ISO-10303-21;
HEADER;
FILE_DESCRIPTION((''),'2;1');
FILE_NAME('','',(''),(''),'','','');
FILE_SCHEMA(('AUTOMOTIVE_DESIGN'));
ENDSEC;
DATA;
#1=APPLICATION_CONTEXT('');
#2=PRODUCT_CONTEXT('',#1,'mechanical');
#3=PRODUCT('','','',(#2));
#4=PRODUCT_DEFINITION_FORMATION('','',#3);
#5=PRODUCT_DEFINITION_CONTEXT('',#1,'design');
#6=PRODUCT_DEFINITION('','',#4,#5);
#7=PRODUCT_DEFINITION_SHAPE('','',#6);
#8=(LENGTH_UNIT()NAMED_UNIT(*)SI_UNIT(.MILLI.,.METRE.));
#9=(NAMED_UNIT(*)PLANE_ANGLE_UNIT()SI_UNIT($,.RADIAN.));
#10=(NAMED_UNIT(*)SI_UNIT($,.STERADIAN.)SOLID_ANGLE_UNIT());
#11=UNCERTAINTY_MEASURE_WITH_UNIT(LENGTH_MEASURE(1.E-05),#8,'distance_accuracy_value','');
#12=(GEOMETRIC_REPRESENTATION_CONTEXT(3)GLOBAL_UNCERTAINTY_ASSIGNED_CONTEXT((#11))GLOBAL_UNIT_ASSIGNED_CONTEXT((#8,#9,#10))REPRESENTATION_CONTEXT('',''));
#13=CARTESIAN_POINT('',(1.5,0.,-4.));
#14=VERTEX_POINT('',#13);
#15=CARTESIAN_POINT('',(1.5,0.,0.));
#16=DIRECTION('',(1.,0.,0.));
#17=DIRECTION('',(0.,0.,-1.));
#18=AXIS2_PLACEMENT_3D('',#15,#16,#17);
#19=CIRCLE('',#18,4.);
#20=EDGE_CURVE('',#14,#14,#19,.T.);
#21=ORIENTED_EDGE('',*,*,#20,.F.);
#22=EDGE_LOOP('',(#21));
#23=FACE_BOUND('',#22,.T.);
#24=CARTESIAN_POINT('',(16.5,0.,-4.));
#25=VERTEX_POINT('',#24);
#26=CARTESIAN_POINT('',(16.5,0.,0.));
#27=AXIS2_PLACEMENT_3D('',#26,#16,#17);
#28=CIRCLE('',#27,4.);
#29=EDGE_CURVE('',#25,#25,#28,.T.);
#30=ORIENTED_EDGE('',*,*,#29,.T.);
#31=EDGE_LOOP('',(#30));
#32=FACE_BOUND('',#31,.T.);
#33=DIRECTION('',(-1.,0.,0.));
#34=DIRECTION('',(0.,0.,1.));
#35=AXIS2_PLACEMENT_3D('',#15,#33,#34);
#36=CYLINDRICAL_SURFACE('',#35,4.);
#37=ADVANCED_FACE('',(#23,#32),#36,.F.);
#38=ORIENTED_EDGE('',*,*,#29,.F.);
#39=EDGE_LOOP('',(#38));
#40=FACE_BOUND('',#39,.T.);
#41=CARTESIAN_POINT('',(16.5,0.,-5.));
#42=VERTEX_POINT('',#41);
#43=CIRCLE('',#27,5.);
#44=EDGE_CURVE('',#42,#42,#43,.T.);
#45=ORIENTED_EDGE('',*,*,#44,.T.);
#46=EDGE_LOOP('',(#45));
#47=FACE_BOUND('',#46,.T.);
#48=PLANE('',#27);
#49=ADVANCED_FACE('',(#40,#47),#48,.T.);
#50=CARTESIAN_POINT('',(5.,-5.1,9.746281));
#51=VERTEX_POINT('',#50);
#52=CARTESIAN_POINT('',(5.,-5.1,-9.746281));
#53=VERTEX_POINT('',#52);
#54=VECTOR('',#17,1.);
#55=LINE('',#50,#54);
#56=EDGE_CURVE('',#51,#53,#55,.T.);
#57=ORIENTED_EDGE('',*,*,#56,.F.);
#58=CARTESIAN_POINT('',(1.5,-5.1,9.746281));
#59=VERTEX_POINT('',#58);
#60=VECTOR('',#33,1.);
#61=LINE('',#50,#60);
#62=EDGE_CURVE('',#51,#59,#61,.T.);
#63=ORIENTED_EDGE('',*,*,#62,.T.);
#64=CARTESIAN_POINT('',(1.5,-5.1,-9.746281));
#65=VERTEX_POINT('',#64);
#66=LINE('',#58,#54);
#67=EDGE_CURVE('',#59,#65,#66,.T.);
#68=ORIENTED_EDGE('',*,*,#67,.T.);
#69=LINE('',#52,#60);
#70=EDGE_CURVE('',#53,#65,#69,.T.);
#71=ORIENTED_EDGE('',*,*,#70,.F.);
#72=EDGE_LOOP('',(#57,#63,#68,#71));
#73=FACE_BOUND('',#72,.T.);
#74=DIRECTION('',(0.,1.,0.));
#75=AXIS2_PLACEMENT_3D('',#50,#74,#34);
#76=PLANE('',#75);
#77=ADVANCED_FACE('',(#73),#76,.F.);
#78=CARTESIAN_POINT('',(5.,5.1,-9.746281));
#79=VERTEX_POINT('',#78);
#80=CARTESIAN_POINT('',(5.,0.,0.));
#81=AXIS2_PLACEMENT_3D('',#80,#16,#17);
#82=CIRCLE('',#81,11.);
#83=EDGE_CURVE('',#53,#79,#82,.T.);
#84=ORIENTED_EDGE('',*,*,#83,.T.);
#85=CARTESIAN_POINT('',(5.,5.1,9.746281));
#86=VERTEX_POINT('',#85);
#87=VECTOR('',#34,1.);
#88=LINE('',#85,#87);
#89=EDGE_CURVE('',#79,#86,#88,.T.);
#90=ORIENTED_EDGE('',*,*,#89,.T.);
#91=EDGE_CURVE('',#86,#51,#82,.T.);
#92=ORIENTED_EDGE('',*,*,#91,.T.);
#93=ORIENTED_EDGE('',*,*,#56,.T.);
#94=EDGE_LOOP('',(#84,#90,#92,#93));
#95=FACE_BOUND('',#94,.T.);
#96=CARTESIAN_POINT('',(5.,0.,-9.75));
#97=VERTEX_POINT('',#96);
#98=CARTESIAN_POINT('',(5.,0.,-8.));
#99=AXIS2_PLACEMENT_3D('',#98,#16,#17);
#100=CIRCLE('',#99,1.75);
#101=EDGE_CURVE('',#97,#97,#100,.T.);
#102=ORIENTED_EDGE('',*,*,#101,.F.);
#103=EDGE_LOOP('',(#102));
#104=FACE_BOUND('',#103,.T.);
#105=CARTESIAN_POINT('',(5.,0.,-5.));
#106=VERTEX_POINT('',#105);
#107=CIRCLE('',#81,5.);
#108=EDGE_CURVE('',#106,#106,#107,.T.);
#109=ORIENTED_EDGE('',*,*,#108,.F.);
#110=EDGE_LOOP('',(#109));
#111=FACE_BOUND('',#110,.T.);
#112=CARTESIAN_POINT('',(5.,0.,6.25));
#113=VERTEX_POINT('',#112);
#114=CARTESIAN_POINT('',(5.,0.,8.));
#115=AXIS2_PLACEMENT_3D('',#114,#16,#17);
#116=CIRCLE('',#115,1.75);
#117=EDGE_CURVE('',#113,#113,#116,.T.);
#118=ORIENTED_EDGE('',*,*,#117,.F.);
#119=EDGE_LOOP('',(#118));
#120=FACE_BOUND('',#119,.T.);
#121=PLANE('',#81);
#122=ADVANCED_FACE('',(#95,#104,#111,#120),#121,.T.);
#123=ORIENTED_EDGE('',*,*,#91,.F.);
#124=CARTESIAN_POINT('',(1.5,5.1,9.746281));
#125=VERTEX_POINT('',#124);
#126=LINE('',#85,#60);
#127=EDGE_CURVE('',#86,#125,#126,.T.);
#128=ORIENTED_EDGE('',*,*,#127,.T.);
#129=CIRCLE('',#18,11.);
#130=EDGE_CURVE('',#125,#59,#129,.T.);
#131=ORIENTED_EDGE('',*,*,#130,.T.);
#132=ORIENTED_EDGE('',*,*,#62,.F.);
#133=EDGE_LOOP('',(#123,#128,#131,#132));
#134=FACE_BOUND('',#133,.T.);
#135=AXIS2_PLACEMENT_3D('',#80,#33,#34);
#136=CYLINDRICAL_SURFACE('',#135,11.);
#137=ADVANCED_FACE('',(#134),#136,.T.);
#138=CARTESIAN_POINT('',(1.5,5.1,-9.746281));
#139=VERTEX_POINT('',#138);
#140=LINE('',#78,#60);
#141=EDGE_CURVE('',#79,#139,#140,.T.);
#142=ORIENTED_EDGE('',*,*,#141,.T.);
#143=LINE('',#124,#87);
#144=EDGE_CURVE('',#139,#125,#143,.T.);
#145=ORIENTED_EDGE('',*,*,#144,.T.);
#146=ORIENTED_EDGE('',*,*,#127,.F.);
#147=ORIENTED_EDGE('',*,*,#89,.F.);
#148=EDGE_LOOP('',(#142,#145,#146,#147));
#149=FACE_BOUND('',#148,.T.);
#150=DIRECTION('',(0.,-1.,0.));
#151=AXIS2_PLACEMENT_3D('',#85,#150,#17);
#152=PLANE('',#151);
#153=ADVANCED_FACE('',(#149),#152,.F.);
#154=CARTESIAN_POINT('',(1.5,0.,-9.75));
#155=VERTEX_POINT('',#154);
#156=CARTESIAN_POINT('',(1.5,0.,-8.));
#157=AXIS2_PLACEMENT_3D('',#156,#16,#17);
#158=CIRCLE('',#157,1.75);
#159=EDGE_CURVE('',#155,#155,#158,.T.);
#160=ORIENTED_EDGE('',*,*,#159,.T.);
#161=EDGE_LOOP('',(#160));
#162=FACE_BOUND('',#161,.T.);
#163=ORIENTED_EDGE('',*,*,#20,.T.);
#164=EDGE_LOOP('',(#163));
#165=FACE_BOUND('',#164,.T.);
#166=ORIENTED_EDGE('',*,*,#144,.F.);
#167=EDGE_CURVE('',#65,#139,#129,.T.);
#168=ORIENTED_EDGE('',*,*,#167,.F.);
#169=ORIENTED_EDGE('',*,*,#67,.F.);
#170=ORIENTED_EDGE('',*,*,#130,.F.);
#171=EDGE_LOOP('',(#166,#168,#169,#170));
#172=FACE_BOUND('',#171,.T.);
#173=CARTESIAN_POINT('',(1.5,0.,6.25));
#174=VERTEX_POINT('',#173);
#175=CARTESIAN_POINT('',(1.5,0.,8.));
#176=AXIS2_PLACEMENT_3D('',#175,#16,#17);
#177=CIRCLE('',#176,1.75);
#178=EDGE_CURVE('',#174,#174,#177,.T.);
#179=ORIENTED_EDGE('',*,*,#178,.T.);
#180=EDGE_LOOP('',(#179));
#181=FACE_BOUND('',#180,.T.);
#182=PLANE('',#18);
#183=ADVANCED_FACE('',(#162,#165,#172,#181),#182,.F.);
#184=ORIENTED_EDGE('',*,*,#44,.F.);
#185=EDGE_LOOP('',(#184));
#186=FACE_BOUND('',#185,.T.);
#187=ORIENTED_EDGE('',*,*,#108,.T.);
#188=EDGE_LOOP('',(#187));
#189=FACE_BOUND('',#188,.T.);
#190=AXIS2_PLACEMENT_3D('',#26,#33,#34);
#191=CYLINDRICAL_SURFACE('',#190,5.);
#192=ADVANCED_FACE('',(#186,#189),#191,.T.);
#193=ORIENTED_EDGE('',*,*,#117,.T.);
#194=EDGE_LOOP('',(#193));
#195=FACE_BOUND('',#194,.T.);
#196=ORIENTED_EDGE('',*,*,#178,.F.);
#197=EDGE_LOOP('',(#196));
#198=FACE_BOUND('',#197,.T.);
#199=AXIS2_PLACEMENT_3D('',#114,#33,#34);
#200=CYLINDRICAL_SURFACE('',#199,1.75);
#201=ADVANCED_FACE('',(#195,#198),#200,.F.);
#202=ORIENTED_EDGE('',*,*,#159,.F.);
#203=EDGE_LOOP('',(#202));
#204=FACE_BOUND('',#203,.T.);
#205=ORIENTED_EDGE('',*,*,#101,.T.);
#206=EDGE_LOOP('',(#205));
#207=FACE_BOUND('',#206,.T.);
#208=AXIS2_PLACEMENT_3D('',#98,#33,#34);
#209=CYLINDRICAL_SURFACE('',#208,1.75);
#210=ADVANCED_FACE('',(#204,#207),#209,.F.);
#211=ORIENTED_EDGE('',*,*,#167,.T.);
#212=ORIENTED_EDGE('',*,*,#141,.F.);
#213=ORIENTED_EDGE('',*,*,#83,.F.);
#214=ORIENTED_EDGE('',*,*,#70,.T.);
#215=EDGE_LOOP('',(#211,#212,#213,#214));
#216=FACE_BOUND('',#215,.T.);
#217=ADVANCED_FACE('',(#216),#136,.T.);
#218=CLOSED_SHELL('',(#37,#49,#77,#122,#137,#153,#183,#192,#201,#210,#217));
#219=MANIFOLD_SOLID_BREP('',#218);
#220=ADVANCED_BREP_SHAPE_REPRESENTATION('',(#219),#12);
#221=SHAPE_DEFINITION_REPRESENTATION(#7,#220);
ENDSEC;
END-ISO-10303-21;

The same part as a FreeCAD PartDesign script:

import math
import FreeCAD as App
import Part
import Sketcher

doc = App.newDocument("Part")
params = doc.addObject("Spreadsheet::Sheet", "Params")
for row, (alias, value) in enumerate([
    ("sketch1_diameter", "10 mm"),
    ("sketch1_diameter2", "8 mm"),
    ("pad1_length", "1.5 mm"),
    ("sketch2_diameter", "8 mm"),
    ("sketch2_radius", "11 mm"),
    ("sketch2_diameter2", "3.5 mm"),
    ("pad2_length", "3.5 mm"),
    ("sketch3_diameter", "10 mm"),
    ("sketch3_diameter2", "8 mm"),
    ("pad3_length", "11.5 mm"),
    ("sketch4_diameter", "10 mm"),
    ("pocket1_length", "1.5 mm"),
], start=1):
    params.set(f"A{row}", alias)
    params.set(f"B{row}", "=" + value)
    params.setAlias(f"B{row}", alias)

body = doc.addObject("PartDesign::Body", "Body")

# Sketch on YZ plane
sketch1 = body.newObject("Sketcher::SketchObject", "Sketch")
sketch1.AttachmentSupport = (doc.getObject("YZ_Plane"), [""])
sketch1.MapMode = "FlatFace"
sketch1.addGeometry(Part.Circle(App.Vector(0, 0, 0), App.Vector(0, 0, 1), 5), False)
sketch1.addGeometry(Part.Circle(App.Vector(0, 0, 0), App.Vector(0, 0, 1), 4), False)
sketch1.addConstraint(Sketcher.Constraint("Coincident", 0, 3, -1, 1))
sketch1.addConstraint(Sketcher.Constraint("Coincident", 1, 3, -1, 1))
sketch1.addConstraint(Sketcher.Constraint("Diameter", 0, 10.0))
sketch1.addConstraint(Sketcher.Constraint("Diameter", 1, 8.0))
sketch1.setExpression("Constraints[2]", "Params.sketch1_diameter")
sketch1.setExpression("Constraints[3]", "Params.sketch1_diameter2")
pad1 = body.newObject("PartDesign::Pad", "Pad")
pad1.Profile = sketch1
pad1.setExpression("Length", "Params.pad1_length")

# Sketch on YZ plane
sketch2 = body.newObject("Sketcher::SketchObject", "Sketch001")
sketch2.AttachmentSupport = (doc.getObject("YZ_Plane"), [""])
sketch2.MapMode = "FlatFace"
sketch2.AttachmentOffset = App.Placement(App.Vector(0, 0, 1.5), App.Rotation())
sketch2.addGeometry(Part.LineSegment(App.Vector(5.1, -9.746281, 0), App.Vector(5.1, 9.746281, 0)), False)
sketch2.addGeometry(Part.ArcOfCircle(Part.Circle(App.Vector(0, 0, 0), App.Vector(0, 0, 1), 11), math.radians(62.377995), math.radians(117.622005)), False)
sketch2.addGeometry(Part.LineSegment(App.Vector(-5.1, 9.746281, 0), App.Vector(-5.1, -9.746281, 0)), False)
sketch2.addGeometry(Part.ArcOfCircle(Part.Circle(App.Vector(0, 0, 0), App.Vector(0, 0, 1), 11), math.radians(-117.622005), math.radians(-62.377995)), False)
sketch2.addGeometry(Part.Circle(App.Vector(0, -8, 0), App.Vector(0, 0, 1), 1.75), False)
sketch2.addGeometry(Part.Circle(App.Vector(0, 0, 0), App.Vector(0, 0, 1), 4), False)
sketch2.addGeometry(Part.Circle(App.Vector(0, 8, 0), App.Vector(0, 0, 1), 1.75), False)
sketch2.addConstraint(Sketcher.Constraint("Coincident", 0, 2, 1, 1))
sketch2.addConstraint(Sketcher.Constraint("Coincident", 1, 2, 2, 1))
sketch2.addConstraint(Sketcher.Constraint("Coincident", 2, 2, 3, 1))
sketch2.addConstraint(Sketcher.Constraint("Coincident", 3, 2, 0, 1))
sketch2.addConstraint(Sketcher.Constraint("Vertical", 0))
sketch2.addConstraint(Sketcher.Constraint("Vertical", 2))
sketch2.addConstraint(Sketcher.Constraint("Coincident", 1, 3, -1, 1))
sketch2.addConstraint(Sketcher.Constraint("Coincident", 3, 3, -1, 1))
sketch2.addConstraint(Sketcher.Constraint("Coincident", 5, 3, -1, 1))
sketch2.addConstraint(Sketcher.Constraint("Equal", 1, 3))
sketch2.addConstraint(Sketcher.Constraint("Equal", 4, 6))
sketch2.addConstraint(Sketcher.Constraint("Symmetric", 4, 3, 6, 3, -1, 1))
sketch2.addConstraint(Sketcher.Constraint("PointOnObject", 4, 3, -2))
sketch2.addConstraint(Sketcher.Constraint("Horizontal", 0, 2, 1, 2))
sketch2.addConstraint(Sketcher.Constraint("Diameter", 5, 8.0))
sketch2.addConstraint(Sketcher.Constraint("Radius", 1, 11.0))
sketch2.addConstraint(Sketcher.Constraint("Diameter", 4, 3.5))
sketch2.addConstraint(Sketcher.Constraint("DistanceY", 4, 3, -1, 1, 8.0))
sketch2.addConstraint(Sketcher.Constraint("DistanceX", -1, 1, 0, 2, 5.1))
sketch2.setExpression("Constraints[14]", "Params.sketch2_diameter")
sketch2.setExpression("Constraints[15]", "Params.sketch2_radius")
sketch2.setExpression("Constraints[16]", "Params.sketch2_diameter2")
pad2 = body.newObject("PartDesign::Pad", "Pad001")
pad2.Profile = sketch2
pad2.setExpression("Length", "Params.pad2_length")

# Sketch on YZ plane
sketch3 = body.newObject("Sketcher::SketchObject", "Sketch002")
sketch3.AttachmentSupport = (doc.getObject("YZ_Plane"), [""])
sketch3.MapMode = "FlatFace"
sketch3.AttachmentOffset = App.Placement(App.Vector(0, 0, 5), App.Rotation())
sketch3.addGeometry(Part.Circle(App.Vector(0, 0, 0), App.Vector(0, 0, 1), 5), False)
sketch3.addGeometry(Part.Circle(App.Vector(0, 0, 0), App.Vector(0, 0, 1), 4), False)
sketch3.addConstraint(Sketcher.Constraint("Coincident", 0, 3, -1, 1))
sketch3.addConstraint(Sketcher.Constraint("Coincident", 1, 3, -1, 1))
sketch3.addConstraint(Sketcher.Constraint("Diameter", 0, 10.0))
sketch3.addConstraint(Sketcher.Constraint("Diameter", 1, 8.0))
sketch3.setExpression("Constraints[2]", "Params.sketch3_diameter")
sketch3.setExpression("Constraints[3]", "Params.sketch3_diameter2")
pad3 = body.newObject("PartDesign::Pad", "Pad002")
pad3.Profile = sketch3
pad3.setExpression("Length", "Params.pad3_length")

# Sketch on YZ plane
sketch4 = body.newObject("Sketcher::SketchObject", "Sketch003")
sketch4.AttachmentSupport = (doc.getObject("YZ_Plane"), [""])
sketch4.MapMode = "FlatFace"
sketch4.addGeometry(Part.Circle(App.Vector(0, 0, 0), App.Vector(0, 0, 1), 5), False)
sketch4.addConstraint(Sketcher.Constraint("Coincident", 0, 3, -1, 1))
sketch4.addConstraint(Sketcher.Constraint("Diameter", 0, 10.0))
sketch4.setExpression("Constraints[1]", "Params.sketch4_diameter")
pocket1 = body.newObject("PartDesign::Pocket", "Pocket")
pocket1.Profile = sketch4
pocket1.setExpression("Length", "Params.pocket1_length")
pocket1.Reversed = True

doc.recompute()
